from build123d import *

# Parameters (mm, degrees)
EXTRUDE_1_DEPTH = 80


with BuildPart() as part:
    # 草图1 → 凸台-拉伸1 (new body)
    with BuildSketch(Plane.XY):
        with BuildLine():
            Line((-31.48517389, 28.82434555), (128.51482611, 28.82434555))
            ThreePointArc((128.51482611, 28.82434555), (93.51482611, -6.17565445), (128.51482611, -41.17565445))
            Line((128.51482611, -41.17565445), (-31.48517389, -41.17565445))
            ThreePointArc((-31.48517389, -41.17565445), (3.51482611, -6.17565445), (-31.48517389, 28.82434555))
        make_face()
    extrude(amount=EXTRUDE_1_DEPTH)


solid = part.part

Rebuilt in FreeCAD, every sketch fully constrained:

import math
import FreeCAD as App
import Part
import Sketcher

V = App.Vector

doc = App.newDocument("Part")
body = doc.addObject("PartDesign::Body", "Body")

sketch1 = body.newObject("Sketcher::SketchObject", "Sketch")
sketch1.AttachmentSupport = (doc.getObject("XY_Plane"), [""])
sketch1.MapMode = "FlatFace"
sketch1.addGeometry(Part.LineSegment(V(129, 29, 0), V(-31, 29, 0)), False)
sketch1.addGeometry(Part.ArcOfCircle(Part.Circle(V(-31, -6, 0), V(0, 0, 1), 35), math.radians(-90), math.radians(90)), False)
sketch1.addGeometry(Part.LineSegment(V(-31, -41, 0), V(129, -41, 0)), False)
sketch1.addGeometry(Part.ArcOfCircle(Part.Circle(V(129, -6, 0), V(0, 0, 1), 35), math.radians(90), math.radians(270)), False)
sketch1.addConstraint(Sketcher.Constraint("Tangent", 0, 2, 1, 2))
sketch1.addConstraint(Sketcher.Constraint("Tangent", 1, 1, 2, 1))
sketch1.addConstraint(Sketcher.Constraint("Tangent", 2, 2, 3, 2))
sketch1.addConstraint(Sketcher.Constraint("Tangent", 3, 1, 0, 1))
sketch1.addConstraint(Sketcher.Constraint("Horizontal", 0))
sketch1.addConstraint(Sketcher.Constraint("Horizontal", 2))
sketch1.addConstraint(Sketcher.Constraint("Radius", 1, 35.0))
sketch1.addConstraint(Sketcher.Constraint("DistanceX", 0, 2, 0, 1, 160.0))
sketch1.addConstraint(Sketcher.Constraint("DistanceX", 1, 3, -1, 1, 31.485174))
sketch1.addConstraint(Sketcher.Constraint("DistanceY", 1, 3, -1, 1, 6.175654))
pad1 = body.newObject("PartDesign::Pad", "Pad")
pad1.Profile = sketch1
pad1.Length = 80

doc.recompute()
